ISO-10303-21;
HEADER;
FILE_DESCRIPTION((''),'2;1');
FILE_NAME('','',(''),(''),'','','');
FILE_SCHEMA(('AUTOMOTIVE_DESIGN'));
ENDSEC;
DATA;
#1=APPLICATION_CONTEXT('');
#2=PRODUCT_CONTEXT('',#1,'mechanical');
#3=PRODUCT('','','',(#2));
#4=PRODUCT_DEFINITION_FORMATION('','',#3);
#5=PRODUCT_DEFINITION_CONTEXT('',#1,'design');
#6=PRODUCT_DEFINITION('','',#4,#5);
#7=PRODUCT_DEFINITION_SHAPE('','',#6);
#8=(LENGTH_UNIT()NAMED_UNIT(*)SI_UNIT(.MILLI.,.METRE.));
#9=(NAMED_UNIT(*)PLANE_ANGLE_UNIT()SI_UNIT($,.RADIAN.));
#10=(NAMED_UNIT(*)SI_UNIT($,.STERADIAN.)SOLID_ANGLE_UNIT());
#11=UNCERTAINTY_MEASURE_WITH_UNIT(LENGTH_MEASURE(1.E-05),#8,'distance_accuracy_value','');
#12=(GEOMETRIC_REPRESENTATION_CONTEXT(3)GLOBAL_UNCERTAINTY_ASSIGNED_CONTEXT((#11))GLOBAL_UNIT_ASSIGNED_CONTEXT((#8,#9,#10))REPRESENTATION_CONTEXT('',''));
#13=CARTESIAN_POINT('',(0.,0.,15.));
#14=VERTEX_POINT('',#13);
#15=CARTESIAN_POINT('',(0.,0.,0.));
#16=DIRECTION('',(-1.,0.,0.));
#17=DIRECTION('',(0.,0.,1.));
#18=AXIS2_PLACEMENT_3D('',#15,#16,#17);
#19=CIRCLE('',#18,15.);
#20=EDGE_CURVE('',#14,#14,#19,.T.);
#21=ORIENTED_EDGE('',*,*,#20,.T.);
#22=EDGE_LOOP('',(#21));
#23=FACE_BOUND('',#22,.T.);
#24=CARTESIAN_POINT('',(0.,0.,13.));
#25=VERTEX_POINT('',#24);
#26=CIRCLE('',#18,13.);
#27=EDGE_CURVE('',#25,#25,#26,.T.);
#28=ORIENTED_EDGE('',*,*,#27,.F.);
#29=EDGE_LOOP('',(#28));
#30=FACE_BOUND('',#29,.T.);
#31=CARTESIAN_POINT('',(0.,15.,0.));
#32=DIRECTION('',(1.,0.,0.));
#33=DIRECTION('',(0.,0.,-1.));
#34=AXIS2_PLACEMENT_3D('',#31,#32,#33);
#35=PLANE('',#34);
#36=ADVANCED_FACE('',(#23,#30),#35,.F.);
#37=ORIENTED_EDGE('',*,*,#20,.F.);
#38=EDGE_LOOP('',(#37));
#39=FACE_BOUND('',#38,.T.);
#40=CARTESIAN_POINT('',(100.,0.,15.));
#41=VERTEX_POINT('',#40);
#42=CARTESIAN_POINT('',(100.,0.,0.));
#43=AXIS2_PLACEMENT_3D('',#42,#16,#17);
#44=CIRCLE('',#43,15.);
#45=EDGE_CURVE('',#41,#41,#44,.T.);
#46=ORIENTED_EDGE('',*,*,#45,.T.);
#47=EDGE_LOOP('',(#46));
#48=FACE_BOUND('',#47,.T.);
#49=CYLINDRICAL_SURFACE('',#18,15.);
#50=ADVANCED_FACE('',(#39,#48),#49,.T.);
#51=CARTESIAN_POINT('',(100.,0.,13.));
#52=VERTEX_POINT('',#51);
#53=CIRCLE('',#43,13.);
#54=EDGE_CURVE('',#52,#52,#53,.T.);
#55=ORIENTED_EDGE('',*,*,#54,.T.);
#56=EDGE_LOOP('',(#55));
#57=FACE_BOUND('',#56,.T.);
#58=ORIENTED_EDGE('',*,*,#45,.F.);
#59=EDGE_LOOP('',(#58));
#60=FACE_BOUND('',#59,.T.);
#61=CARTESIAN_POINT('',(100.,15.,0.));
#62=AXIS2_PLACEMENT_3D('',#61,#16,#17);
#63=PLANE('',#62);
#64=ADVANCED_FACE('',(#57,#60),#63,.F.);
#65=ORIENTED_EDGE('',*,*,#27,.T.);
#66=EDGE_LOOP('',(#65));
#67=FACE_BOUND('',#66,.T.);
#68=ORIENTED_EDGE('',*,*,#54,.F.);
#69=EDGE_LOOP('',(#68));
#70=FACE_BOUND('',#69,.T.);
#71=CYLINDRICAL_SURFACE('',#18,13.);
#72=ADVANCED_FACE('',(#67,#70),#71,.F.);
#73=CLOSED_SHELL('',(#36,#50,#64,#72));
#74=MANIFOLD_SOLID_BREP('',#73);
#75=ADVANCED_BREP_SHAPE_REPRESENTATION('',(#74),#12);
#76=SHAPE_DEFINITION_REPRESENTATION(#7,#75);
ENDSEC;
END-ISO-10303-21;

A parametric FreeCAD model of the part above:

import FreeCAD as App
import Part
import Sketcher
Q = App.Units.Quantity


def add_polygon(sketch, points):
    """Adds a closed chain of lines whose ends are joined by coincident constraints."""
    first, n = sketch.GeometryCount, len(points)
    for a, b in zip(points, points[1:] + points[:1]):
        sketch.addGeometry(Part.LineSegment(App.Vector(*a, 0), App.Vector(*b, 0)), False)
    for i in range(n):
        sketch.addConstraint(Sketcher.Constraint("Coincident", first + i, 2, first + (i + 1) % n, 1))

doc = App.newDocument("Part")
body = doc.addObject("PartDesign::Body", "Body")

sketch1 = body.newObject("Sketcher::SketchObject", "Sketch")
sketch1.AttachmentSupport = (doc.getObject("XY_Plane"), [""])
sketch1.MapMode = "FlatFace"
add_polygon(sketch1, [(0, 15), (0, 13), (100, 13), (100, 15)])
sketch1.addConstraint(Sketcher.Constraint("Vertical", 0))
sketch1.addConstraint(Sketcher.Constraint("Horizontal", 1))
sketch1.addConstraint(Sketcher.Constraint("Vertical", 2))
sketch1.addConstraint(Sketcher.Constraint("Horizontal", 3))
sketch1.addConstraint(Sketcher.Constraint("PointOnObject", 0, 2, -2))
sketch1.addConstraint(Sketcher.Constraint("DistanceX", 1, 1, 1, 2, Q("100 mm")))
sketch1.addConstraint(Sketcher.Constraint("DistanceY", 0, 2, 0, 1, Q("2 mm")))
sketch1.addConstraint(Sketcher.Constraint("DistanceY", -1, 1, 0, 2, Q("13 mm")))
revolution = body.newObject("PartDesign::Revolution", "Revolution")
revolution.Profile = sketch1
revolution.ReferenceAxis = (sketch1, ["H_Axis"])
revolution.Angle = 360

doc.recompute()
